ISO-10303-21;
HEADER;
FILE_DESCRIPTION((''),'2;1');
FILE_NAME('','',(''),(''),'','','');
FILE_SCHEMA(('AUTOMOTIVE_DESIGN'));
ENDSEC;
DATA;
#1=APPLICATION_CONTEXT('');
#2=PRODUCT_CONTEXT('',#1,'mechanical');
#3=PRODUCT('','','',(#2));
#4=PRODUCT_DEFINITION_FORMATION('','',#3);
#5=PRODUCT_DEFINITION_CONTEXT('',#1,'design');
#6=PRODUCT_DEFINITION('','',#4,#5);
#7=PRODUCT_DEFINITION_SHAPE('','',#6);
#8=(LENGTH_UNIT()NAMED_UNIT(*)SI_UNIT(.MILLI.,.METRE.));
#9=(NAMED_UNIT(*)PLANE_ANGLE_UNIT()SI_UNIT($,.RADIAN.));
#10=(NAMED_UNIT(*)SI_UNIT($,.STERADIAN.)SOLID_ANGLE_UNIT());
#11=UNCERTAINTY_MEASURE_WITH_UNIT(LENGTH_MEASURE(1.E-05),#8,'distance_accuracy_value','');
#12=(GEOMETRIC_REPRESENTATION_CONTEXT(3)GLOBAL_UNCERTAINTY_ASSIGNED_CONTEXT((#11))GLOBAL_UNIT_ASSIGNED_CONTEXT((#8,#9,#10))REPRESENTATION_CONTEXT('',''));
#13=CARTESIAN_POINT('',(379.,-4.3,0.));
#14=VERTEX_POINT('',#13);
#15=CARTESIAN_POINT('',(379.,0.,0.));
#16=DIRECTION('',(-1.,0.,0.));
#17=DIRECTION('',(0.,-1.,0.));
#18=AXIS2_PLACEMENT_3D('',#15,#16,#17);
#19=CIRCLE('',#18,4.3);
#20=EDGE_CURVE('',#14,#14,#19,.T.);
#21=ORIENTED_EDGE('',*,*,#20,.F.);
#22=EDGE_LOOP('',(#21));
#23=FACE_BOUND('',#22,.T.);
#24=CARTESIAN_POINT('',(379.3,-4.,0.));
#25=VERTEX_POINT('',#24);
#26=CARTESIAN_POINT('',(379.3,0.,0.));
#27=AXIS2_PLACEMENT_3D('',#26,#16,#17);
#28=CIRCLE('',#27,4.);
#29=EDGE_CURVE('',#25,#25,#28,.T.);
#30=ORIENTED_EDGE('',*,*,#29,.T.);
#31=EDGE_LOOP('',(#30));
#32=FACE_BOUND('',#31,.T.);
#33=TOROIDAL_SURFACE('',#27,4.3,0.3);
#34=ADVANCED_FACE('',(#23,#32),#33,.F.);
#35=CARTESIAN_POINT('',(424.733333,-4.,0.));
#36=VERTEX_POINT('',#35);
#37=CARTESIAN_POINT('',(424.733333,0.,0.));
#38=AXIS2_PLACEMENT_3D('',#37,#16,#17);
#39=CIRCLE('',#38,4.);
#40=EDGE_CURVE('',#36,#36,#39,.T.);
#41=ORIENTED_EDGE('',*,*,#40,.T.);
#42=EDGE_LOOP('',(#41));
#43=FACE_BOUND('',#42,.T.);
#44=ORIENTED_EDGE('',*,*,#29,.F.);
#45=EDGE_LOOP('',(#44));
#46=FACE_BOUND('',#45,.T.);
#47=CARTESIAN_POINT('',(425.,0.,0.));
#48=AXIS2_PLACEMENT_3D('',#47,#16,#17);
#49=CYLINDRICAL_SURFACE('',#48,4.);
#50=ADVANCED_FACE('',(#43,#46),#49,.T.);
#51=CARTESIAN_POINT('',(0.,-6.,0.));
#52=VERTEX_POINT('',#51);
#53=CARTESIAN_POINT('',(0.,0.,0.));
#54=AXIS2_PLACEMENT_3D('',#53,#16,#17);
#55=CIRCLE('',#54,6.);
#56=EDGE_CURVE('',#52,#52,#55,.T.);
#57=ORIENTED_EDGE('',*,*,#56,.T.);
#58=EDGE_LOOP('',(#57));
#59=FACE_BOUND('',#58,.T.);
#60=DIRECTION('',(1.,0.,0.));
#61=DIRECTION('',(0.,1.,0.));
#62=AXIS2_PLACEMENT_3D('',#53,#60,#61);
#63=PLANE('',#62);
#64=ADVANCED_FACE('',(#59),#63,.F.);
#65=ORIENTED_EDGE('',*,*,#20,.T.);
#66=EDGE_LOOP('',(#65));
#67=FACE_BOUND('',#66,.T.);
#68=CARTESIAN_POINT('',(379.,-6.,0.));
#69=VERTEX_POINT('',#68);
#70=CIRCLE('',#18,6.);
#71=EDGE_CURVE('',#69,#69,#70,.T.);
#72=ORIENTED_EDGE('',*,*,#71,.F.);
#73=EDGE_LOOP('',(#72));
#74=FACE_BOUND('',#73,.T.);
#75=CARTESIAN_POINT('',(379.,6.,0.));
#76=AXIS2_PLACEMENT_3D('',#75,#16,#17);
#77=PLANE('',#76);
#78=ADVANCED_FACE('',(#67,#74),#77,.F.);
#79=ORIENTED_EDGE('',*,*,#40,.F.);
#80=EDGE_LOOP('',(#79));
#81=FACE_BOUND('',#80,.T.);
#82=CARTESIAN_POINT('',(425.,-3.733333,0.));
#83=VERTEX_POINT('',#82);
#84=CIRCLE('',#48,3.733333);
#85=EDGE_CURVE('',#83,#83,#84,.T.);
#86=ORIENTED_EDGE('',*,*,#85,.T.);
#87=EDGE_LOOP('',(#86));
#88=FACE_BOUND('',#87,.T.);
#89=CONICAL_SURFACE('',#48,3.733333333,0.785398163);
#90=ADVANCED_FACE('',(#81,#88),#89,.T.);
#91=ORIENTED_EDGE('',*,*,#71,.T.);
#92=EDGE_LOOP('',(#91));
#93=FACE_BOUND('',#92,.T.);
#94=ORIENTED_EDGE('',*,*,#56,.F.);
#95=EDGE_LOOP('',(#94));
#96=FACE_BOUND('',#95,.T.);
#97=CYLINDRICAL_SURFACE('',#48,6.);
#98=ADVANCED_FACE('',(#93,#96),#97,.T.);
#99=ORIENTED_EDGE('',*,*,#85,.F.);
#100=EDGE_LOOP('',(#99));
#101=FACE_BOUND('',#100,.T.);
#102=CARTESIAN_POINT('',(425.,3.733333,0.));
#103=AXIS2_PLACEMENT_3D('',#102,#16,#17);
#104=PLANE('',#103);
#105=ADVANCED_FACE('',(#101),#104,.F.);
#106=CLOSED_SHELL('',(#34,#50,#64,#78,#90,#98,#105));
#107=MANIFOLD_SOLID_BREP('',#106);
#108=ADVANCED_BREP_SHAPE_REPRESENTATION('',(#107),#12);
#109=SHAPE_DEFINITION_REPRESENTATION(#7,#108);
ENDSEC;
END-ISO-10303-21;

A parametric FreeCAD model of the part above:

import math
import FreeCAD as App
import Part
import Sketcher
from FreeCAD import Vector
Q = App.Units.Quantity

doc = App.newDocument("Part")
body = doc.addObject("PartDesign::Body", "Body")

# Sketch on XY plane
sketch1 = body.newObject("Sketcher::SketchObject", "Sketch")
sketch1.AttachmentSupport = (doc.getObject("XY_Plane"), [""])
sketch1.MapMode = "FlatFace"
sketch1.addGeometry([
    Part.LineSegment(Vector(0, 6, 0), Vector(0, 0, 0)),  # 0
    Part.LineSegment(Vector(0, 0, 0), Vector(425, 0, 0)),  # 1
    Part.LineSegment(Vector(425, 0, 0), Vector(425, 3.73, 0)),  # 2
    Part.LineSegment(Vector(425, 3.73, 0), Vector(424.73, 4, 0)),  # 3
    Part.LineSegment(Vector(424.73, 4, 0), Vector(379.3, 4, 0)),  # 4
    Part.ArcOfCircle(Part.Circle(Vector(379.3, 4.3, 0), Vector(0, 0, 1), 0.3), math.radians(-180), math.radians(-90)),  # 5
    Part.LineSegment(Vector(379, 4.3, 0), Vector(379, 6, 0)),  # 6
    Part.LineSegment(Vector(379, 6, 0), Vector(0, 6, 0)),  # 7
], False)
sketch1.addConstraint([
    Sketcher.Constraint("Coincident", 0, 2, 1, 1),
    Sketcher.Constraint("Coincident", 1, 2, 2, 1),
    Sketcher.Constraint("Coincident", 2, 2, 3, 1),
    Sketcher.Constraint("Coincident", 3, 2, 4, 1),
    Sketcher.Constraint("Tangent", 4, 2, 5, 2),
    Sketcher.Constraint("Tangent", 5, 1, 6, 1),
    Sketcher.Constraint("Coincident", 6, 2, 7, 1),
    Sketcher.Constraint("Coincident", 7, 2, 0, 1),
    Sketcher.Constraint("Vertical", 0),
    Sketcher.Constraint("Horizontal", 1),
    Sketcher.Constraint("Vertical", 2),
    Sketcher.Constraint("Horizontal", 4),
    Sketcher.Constraint("Vertical", 6),
    Sketcher.Constraint("Horizontal", 7),
    Sketcher.Constraint("Coincident", 0, 2, -1, 1),
    Sketcher.Constraint("Radius", 5, 0.3),
    Sketcher.Constraint("DistanceX", 1, 1, 1, 2, 425.0),
    Sketcher.Constraint("DistanceX", 7, 2, 7, 1, 379.0),
    Sketcher.Constraint("DistanceY", 0, 2, 0, 1, 6.0),
    Sketcher.Constraint("Angle", 3, Q("135 deg")),
    Sketcher.Constraint("DistanceY", 6, 1, 6, 2, 1.7),
    Sketcher.Constraint("DistanceX", 4, 2, 4, 1, 45.433333),
])
revolution = body.newObject("PartDesign::Revolution", "Revolution")
revolution.Profile = sketch1
revolution.ReferenceAxis = (sketch1, ["H_Axis"])
revolution.Angle = 360

doc.recompute()
